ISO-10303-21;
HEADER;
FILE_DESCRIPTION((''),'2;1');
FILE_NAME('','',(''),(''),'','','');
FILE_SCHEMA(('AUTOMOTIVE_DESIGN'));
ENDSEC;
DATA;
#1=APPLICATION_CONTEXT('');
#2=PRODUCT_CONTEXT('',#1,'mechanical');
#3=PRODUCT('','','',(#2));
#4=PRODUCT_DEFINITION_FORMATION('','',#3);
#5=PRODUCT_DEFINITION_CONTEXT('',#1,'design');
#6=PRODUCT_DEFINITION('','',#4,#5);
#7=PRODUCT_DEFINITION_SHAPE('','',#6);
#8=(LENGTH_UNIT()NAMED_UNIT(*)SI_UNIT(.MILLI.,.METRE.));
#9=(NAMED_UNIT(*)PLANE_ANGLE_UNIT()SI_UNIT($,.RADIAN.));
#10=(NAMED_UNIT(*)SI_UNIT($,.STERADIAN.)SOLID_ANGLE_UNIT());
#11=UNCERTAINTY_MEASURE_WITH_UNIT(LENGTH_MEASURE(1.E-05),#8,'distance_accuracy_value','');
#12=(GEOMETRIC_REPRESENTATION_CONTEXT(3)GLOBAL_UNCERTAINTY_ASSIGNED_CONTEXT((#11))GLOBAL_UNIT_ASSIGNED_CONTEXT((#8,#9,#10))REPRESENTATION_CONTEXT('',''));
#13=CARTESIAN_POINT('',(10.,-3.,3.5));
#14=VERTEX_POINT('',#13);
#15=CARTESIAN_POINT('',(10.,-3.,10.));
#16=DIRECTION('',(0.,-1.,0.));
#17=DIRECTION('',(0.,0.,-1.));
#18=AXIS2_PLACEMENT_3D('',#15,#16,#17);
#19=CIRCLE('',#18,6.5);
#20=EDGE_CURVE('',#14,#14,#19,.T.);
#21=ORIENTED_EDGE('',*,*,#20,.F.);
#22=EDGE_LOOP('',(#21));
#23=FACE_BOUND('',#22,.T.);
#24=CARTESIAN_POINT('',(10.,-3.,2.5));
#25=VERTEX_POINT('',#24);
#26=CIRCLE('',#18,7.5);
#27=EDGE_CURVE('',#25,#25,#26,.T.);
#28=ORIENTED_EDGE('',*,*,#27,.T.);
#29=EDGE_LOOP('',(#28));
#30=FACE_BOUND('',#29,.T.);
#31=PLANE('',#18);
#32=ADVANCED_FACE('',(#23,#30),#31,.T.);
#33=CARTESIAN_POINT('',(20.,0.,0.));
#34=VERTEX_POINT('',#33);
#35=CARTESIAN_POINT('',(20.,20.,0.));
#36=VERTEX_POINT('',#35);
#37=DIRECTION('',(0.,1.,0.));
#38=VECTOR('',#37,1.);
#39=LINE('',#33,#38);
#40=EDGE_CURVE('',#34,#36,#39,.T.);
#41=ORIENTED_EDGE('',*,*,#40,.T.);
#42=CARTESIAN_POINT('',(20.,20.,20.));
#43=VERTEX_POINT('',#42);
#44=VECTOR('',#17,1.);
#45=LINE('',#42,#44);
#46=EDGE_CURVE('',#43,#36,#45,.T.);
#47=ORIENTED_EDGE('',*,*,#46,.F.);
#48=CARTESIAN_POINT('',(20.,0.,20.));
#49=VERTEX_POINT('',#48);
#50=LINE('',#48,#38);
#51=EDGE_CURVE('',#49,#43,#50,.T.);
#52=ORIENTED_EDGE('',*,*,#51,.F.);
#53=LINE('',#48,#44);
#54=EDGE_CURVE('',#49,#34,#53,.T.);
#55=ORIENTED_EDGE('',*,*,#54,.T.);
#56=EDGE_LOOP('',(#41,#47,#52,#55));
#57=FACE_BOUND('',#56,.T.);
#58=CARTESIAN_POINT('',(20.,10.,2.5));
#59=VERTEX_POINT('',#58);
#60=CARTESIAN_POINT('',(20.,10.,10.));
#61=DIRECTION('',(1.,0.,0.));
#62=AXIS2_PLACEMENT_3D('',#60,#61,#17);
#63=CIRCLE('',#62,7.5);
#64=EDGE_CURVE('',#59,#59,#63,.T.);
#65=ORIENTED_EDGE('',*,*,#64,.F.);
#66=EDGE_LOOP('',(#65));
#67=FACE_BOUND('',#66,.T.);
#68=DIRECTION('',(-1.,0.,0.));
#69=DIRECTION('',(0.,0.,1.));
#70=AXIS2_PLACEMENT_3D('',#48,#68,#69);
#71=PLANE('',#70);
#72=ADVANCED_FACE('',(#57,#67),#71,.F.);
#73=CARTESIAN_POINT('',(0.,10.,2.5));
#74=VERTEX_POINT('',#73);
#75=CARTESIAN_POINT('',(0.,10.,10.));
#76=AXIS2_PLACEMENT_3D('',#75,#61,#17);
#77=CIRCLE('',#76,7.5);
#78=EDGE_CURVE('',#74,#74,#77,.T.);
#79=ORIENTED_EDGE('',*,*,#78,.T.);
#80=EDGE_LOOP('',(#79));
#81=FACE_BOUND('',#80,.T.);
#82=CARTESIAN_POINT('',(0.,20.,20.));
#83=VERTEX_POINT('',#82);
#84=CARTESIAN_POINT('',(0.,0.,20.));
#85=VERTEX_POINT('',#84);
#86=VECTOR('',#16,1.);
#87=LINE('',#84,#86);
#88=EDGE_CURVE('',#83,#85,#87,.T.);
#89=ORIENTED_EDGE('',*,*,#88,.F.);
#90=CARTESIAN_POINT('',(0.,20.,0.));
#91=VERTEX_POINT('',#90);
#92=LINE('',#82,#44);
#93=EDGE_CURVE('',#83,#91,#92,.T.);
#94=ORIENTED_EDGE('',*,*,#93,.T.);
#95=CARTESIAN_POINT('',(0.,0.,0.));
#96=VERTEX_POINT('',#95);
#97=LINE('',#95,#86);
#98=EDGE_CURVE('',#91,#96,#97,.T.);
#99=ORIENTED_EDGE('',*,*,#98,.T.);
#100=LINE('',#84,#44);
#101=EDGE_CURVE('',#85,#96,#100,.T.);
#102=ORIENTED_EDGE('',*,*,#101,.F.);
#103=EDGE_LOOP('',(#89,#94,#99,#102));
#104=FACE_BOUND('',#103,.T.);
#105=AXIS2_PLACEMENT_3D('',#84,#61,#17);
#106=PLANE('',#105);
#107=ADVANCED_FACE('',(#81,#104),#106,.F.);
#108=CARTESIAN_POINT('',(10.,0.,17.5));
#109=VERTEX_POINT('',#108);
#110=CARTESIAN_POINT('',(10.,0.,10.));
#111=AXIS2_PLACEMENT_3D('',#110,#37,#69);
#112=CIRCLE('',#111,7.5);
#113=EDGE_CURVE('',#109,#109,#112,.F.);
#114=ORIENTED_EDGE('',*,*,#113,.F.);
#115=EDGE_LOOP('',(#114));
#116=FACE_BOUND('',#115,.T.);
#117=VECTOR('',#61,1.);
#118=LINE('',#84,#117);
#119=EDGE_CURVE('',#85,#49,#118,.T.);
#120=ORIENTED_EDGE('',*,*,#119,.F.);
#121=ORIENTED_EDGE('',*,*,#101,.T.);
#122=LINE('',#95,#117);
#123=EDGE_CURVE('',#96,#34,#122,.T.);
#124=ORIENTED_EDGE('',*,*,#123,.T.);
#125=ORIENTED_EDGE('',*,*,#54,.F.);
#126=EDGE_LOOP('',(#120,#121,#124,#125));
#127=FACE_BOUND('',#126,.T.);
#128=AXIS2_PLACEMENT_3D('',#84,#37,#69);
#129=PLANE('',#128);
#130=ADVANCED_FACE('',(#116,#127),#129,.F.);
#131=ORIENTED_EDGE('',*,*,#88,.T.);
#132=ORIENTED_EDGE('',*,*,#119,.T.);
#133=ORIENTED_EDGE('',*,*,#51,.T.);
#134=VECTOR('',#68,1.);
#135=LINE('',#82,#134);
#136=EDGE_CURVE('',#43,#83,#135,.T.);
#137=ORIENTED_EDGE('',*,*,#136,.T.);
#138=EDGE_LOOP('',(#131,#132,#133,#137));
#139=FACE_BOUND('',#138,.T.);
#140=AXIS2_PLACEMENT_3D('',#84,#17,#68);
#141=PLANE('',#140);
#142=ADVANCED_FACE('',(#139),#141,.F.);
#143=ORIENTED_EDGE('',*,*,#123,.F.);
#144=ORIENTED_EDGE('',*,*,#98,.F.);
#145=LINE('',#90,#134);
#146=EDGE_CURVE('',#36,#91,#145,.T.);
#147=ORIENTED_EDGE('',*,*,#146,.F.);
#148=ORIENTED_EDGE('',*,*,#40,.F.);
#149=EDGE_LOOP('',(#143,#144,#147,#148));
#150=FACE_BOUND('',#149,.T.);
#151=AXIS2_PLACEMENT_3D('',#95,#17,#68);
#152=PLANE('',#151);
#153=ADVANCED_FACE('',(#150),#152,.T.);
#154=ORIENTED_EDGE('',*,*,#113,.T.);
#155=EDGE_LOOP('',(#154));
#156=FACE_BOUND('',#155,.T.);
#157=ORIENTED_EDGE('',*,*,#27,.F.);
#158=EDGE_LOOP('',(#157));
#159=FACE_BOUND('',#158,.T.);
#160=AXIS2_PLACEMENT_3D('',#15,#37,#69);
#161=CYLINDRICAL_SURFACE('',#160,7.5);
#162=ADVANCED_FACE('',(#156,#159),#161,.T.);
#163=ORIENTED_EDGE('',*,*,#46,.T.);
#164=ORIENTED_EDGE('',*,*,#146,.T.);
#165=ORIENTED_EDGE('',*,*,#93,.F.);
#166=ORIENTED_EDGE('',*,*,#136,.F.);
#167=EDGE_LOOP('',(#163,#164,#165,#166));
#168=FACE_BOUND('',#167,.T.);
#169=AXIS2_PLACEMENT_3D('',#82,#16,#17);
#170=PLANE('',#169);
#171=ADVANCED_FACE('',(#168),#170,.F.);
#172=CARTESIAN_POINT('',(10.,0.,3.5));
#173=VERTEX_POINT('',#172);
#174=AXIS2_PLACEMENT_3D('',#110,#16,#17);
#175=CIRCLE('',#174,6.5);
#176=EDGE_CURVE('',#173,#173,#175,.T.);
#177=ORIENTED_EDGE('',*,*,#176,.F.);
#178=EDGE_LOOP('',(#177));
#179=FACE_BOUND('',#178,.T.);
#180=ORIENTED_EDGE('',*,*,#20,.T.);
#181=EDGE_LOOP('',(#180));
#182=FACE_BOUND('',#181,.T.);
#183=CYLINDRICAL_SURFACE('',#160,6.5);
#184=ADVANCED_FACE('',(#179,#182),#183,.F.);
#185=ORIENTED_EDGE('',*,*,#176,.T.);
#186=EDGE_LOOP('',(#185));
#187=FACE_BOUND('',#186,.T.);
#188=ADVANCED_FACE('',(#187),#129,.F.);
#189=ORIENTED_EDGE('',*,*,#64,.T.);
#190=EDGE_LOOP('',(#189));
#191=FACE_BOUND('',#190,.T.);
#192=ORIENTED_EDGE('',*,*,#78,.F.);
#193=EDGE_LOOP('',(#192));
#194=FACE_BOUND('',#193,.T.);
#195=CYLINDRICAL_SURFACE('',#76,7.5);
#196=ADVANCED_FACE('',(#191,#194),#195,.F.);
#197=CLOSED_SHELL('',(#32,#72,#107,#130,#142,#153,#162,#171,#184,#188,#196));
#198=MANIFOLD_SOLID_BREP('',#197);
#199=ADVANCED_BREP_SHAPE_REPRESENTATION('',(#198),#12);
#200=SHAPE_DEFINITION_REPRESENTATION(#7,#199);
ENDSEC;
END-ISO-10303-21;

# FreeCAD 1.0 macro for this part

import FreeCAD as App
import Part
import Sketcher

V = App.Vector


def add_polygon(sketch, points):
    """Adds a closed chain of lines whose ends are joined by coincident constraints."""
    first, n = sketch.GeometryCount, len(points)
    for a, b in zip(points, points[1:] + points[:1]):
        sketch.addGeometry(Part.LineSegment(App.Vector(*a, 0), App.Vector(*b, 0)), False)
    for i in range(n):
        sketch.addConstraint(Sketcher.Constraint("Coincident", first + i, 2, first + (i + 1) % n, 1))

doc = App.newDocument("Part")
body = doc.addObject("PartDesign::Body", "Body")

sketch1 = body.newObject("Sketcher::SketchObject", "Sketch")
sketch1.AttachmentSupport = (doc.getObject("XY_Plane"), [""])
sketch1.MapMode = "FlatFace"
add_polygon(sketch1, [(0, 20), (0, 0), (20, 0), (20, 20)])
sketch1.addConstraint([
    Sketcher.Constraint("Vertical", 0),
    Sketcher.Constraint("Horizontal", 1),
    Sketcher.Constraint("Vertical", 2),
    Sketcher.Constraint("Horizontal", 3),
    Sketcher.Constraint("Coincident", 0, 2, -1, 1),
    Sketcher.Constraint("Equal", 3, 0),
    Sketcher.Constraint("DistanceX", 1, 1, 1, 2, 20.0),
])
pad1 = body.newObject("PartDesign::Pad", "Pad")
pad1.Profile = sketch1
pad1.Length = 20

sketch2 = body.newObject("Sketcher::SketchObject", "Sketch001")
sketch2.AttachmentSupport = (doc.getObject("YZ_Plane"), [""])
sketch2.MapMode = "FlatFace"
sketch2.AttachmentOffset = App.Placement(V(0, 0, 20), App.Rotation())
sketch2.addGeometry(Part.Circle(V(10, 10, 0), V(0, 0, 1), 7.5), False)
sketch2.addConstraint([
    Sketcher.Constraint("Diameter", 0, 15.0),
    Sketcher.Constraint("DistanceX", -1, 1, 0, 3, 10.0),
    Sketcher.Constraint("DistanceY", -1, 1, 0, 3, 10.0),
])
pocket1 = body.newObject("PartDesign::Pocket", "Pocket")
pocket1.Profile = sketch2
pocket1.Length = 20

sketch3 = body.newObject("Sketcher::SketchObject", "Sketch002")
sketch3.AttachmentSupport = (doc.getObject("XZ_Plane"), [""])
sketch3.MapMode = "FlatFace"
sketch3.addGeometry([
    Part.Circle(V(10, 10, 0), V(0, 0, 1), 7.5),
    Part.Circle(V(10, 10, 0), V(0, 0, 1), 6.5),
], False)
sketch3.addConstraint([
    Sketcher.Constraint("Coincident", 1, 3, 0, 3),
    Sketcher.Constraint("Diameter", 0, 15.0),
    Sketcher.Constraint("Diameter", 1, 13.0),
    Sketcher.Constraint("DistanceX", -1, 1, 0, 3, 10.0),
    Sketcher.Constraint("DistanceY", -1, 1, 0, 3, 10.0),
])
pad2 = body.newObject("PartDesign::Pad", "Pad001")
pad2.Profile = sketch3
pad2.Length = 3

doc.recompute()
